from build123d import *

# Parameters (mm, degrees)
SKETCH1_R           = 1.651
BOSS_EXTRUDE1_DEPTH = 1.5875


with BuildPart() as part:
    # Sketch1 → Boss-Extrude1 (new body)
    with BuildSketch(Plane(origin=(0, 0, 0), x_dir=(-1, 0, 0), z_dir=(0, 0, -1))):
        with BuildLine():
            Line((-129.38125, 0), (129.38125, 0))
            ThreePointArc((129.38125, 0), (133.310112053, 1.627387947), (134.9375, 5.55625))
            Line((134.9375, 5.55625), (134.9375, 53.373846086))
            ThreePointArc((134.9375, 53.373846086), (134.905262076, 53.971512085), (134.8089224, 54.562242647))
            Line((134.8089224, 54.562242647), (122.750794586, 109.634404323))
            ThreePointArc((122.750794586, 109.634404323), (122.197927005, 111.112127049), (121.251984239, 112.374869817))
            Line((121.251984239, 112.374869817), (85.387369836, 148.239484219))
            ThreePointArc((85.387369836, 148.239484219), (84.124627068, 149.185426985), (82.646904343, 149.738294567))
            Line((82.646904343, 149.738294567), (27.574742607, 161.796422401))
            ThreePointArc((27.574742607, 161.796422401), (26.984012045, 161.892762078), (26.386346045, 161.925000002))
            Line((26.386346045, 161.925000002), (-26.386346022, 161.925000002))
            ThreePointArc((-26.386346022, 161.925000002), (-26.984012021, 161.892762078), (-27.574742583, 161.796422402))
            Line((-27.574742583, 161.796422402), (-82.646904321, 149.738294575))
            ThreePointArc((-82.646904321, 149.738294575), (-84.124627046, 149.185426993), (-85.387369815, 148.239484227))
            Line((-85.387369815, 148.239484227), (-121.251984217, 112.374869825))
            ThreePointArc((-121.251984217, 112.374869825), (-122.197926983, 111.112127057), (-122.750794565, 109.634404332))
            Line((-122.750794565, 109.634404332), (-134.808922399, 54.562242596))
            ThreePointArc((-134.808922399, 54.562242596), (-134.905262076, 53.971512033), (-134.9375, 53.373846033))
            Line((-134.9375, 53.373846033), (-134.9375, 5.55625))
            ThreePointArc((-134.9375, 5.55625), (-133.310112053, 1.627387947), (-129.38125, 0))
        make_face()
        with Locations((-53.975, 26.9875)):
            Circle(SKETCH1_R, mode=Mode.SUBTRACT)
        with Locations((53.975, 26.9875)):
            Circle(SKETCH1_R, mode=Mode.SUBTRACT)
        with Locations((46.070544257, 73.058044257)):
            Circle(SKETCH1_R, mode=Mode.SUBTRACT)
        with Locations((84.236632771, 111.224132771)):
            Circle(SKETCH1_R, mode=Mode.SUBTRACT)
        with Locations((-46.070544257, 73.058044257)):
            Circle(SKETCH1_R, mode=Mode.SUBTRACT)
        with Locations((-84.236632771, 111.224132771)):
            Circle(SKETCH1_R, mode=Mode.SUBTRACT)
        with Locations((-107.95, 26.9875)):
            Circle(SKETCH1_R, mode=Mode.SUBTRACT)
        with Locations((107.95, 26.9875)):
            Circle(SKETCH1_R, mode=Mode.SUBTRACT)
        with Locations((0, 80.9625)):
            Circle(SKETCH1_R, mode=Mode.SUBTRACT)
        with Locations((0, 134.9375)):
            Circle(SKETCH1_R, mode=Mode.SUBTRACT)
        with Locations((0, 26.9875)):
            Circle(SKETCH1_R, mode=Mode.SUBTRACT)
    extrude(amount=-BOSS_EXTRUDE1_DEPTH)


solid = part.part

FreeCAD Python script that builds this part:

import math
import FreeCAD as App
import Part
import Sketcher
from FreeCAD import Vector
Q = App.Units.Quantity

doc = App.newDocument("Part")
body = doc.addObject("PartDesign::Body", "Body")

# Sketch on XY plane
sketch1 = body.newObject("Sketcher::SketchObject", "Sketch")
sketch1.AttachmentSupport = (doc.getObject("XY_Plane"), [""])
sketch1.MapMode = "FlatFace"
sketch1.addGeometry([
    Part.LineSegment(Vector(129.4, 0, 0), Vector(-129.4, 0, 0)),  # 0
    Part.ArcOfCircle(Part.Circle(Vector(-129.4, 5.6, 0), Vector(0, 0, 1), 5.6), math.radians(180), math.radians(270)),  # 1
    Part.LineSegment(Vector(-134.9, 5.6, 0), Vector(-134.9, 53.4, 0)),  # 2
    Part.ArcOfCircle(Part.Circle(Vector(-129.4, 53.4, 0), Vector(0, 0, 1), 5.6), math.radians(167.65), math.radians(180)),  # 3
    Part.LineSegment(Vector(-134.8, 54.6, 0), Vector(-122.8, 109.6, 0)),  # 4
    Part.ArcOfCircle(Part.Circle(Vector(-117.3, 108.4, 0), Vector(0, 0, 1), 5.6), math.radians(135), math.radians(168)),  # 5
    Part.LineSegment(Vector(-121.3, 112.4, 0), Vector(-85.4, 148.2, 0)),  # 6
    Part.ArcOfCircle(Part.Circle(Vector(-81.5, 144.3, 0), Vector(0, 0, 1), 5.6), math.radians(102), math.radians(135)),  # 7
    Part.LineSegment(Vector(-82.6, 149.7, 0), Vector(-27.6, 161.8, 0)),  # 8
    Part.ArcOfCircle(Part.Circle(Vector(-26.4, 156.4, 0), Vector(0, 0, 1), 5.6), math.radians(90), math.radians(102.35)),  # 9
    Part.LineSegment(Vector(-26.4, 161.9, 0), Vector(26.4, 161.9, 0)),  # 10
    Part.ArcOfCircle(Part.Circle(Vector(26.4, 156.4, 0), Vector(0, 0, 1), 5.6), math.radians(77.65), math.radians(90)),  # 11
    Part.LineSegment(Vector(27.6, 161.8, 0), Vector(82.6, 149.7, 0)),  # 12
    Part.ArcOfCircle(Part.Circle(Vector(81.5, 144.3, 0), Vector(0, 0, 1), 5.6), math.radians(45), math.radians(78)),  # 13
    Part.LineSegment(Vector(85.4, 148.2, 0), Vector(121.3, 112.4, 0)),  # 14
    Part.ArcOfCircle(Part.Circle(Vector(117.3, 108.4, 0), Vector(0, 0, 1), 5.6), math.radians(12), math.radians(45)),  # 15
    Part.LineSegment(Vector(122.8, 109.6, 0), Vector(134.8, 54.6, 0)),  # 16
    Part.ArcOfCircle(Part.Circle(Vector(129.4, 53.4, 0), Vector(0, 0, 1), 5.6), math.radians(0), math.radians(12.35)),  # 17
    Part.LineSegment(Vector(134.9, 53.4, 0), Vector(134.9, 5.6, 0)),  # 18
    Part.ArcOfCircle(Part.Circle(Vector(129.4, 5.6, 0), Vector(0, 0, 1), 5.6), math.radians(-90), math.radians(0)),  # 19
    Part.Circle(Vector(108, 27, 0), Vector(0, 0, 1), 1.7),  # 20
    Part.Circle(Vector(54, 27, 0), Vector(0, 0, 1), 1.7),  # 21
    Part.Circle(Vector(46.1, 73.1, 0), Vector(0, 0, 1), 1.7),  # 22
    Part.Circle(Vector(0, 27, 0), Vector(0, 0, 1), 1.7),  # 23
    Part.Circle(Vector(-54, 27, 0), Vector(0, 0, 1), 1.7),  # 24
    Part.Circle(Vector(-108, 27, 0), Vector(0, 0, 1), 1.7),  # 25
    Part.Circle(Vector(-46.1, 73.1, 0), Vector(0, 0, 1), 1.7),  # 26
    Part.Circle(Vector(84.2, 111.2, 0), Vector(0, 0, 1), 1.7),  # 27
    Part.Circle(Vector(0, 81, 0), Vector(0, 0, 1), 1.7),  # 28
    Part.Circle(Vector(0, 134.9, 0), Vector(0, 0, 1), 1.7),  # 29
    Part.Circle(Vector(-84.2, 111.2, 0), Vector(0, 0, 1), 1.7),  # 30
], False)
sketch1.addConstraint([
    Sketcher.Constraint("Tangent", 0, 2, 1, 2),
    Sketcher.Constraint("Tangent", 1, 1, 2, 1),
    Sketcher.Constraint("Tangent", 2, 2, 3, 2),
    Sketcher.Constraint("Tangent", 3, 1, 4, 1),
    Sketcher.Constraint("Tangent", 4, 2, 5, 2),
    Sketcher.Constraint("Tangent", 5, 1, 6, 1),
    Sketcher.Constraint("Tangent", 6, 2, 7, 2),
    Sketcher.Constraint("Tangent", 7, 1, 8, 1),
    Sketcher.Constraint("Tangent", 8, 2, 9, 2),
    Sketcher.Constraint("Tangent", 9, 1, 10, 1),
    Sketcher.Constraint("Tangent", 10, 2, 11, 2),
    Sketcher.Constraint("Tangent", 11, 1, 12, 1),
    Sketcher.Constraint("Tangent", 12, 2, 13, 2),
    Sketcher.Constraint("Tangent", 13, 1, 14, 1),
    Sketcher.Constraint("Tangent", 14, 2, 15, 2),
    Sketcher.Constraint("Tangent", 15, 1, 16, 1),
    Sketcher.Constraint("Tangent", 16, 2, 17, 2),
    Sketcher.Constraint("Tangent", 17, 1, 18, 1),
    Sketcher.Constraint("Tangent", 18, 2, 19, 2),
    Sketcher.Constraint("Tangent", 19, 1, 0, 1),
    Sketcher.Constraint("Horizontal", 0),
    Sketcher.Constraint("Vertical", 2),
    Sketcher.Constraint("Horizontal", 10),
    Sketcher.Constraint("Vertical", 18),
    Sketcher.Constraint("Equal", 1, 3),
    Sketcher.Constraint("Equal", 3, 5),
    Sketcher.Constraint("Equal", 5, 7),
    Sketcher.Constraint("Equal", 7, 9),
    Sketcher.Constraint("Equal", 9, 11),
    Sketcher.Constraint("Equal", 11, 13),
    Sketcher.Constraint("Equal", 13, 15),
    Sketcher.Constraint("Equal", 15, 17),
    Sketcher.Constraint("Equal", 17, 19),
    Sketcher.Constraint("Equal", 20, 21),
    Sketcher.Constraint("Equal", 21, 22),
    Sketcher.Constraint("Equal", 22, 23),
    Sketcher.Constraint("Equal", 23, 24),
    Sketcher.Constraint("Equal", 24, 25),
    Sketcher.Constraint("Equal", 25, 26),
    Sketcher.Constraint("Equal", 26, 27),
    Sketcher.Constraint("Equal", 27, 28),
    Sketcher.Constraint("Equal", 28, 29),
    Sketcher.Constraint("Equal", 29, 30),
    Sketcher.Constraint("Symmetric", 0, 2, 19, 1, -1, 1),
    Sketcher.Constraint("Symmetric", 7, 3, 13, 3, -2),
    Sketcher.Constraint("Symmetric", 5, 3, 15, 3, -2),
    Sketcher.Constraint("Symmetric", 21, 3, 24, 3, -2),
    Sketcher.Constraint("Symmetric", 20, 3, 25, 3, -2),
    Sketcher.Constraint("Symmetric", 22, 3, 26, 3, -2),
    Sketcher.Constraint("Symmetric", 27, 3, 30, 3, -2),
    Sketcher.Constraint("PointOnObject", 23, 3, -2),
    Sketcher.Constraint("PointOnObject", 28, 3, -2),
    Sketcher.Constraint("PointOnObject", 29, 3, -2),
    Sketcher.Constraint("Perpendicular", 4, 12),
    Sketcher.Constraint("Perpendicular", 6, 14),
    Sketcher.Constraint("Perpendicular", 8, 16),
    Sketcher.Constraint("Horizontal", 3, 3, 17, 3),
    Sketcher.Constraint("Horizontal", 20, 3, 21, 3),
    Sketcher.Constraint("Horizontal", 21, 3, 23, 3),
    Sketcher.Constraint("Equal", 4, 8),
    Sketcher.Constraint("Diameter", 20, Q("0.13 in")),
    Sketcher.Constraint("Radius", 1, Q("0.21875 in")),
    Sketcher.Constraint("DistanceX", 0, 2, 0, 1, Q("10.1875 in")),
    Sketcher.Constraint("DistanceX", -1, 1, 20, 3, Q("4.25 in")),
    Sketcher.Constraint("DistanceX", 24, 3, 21, 3, Q("4.25 in")),
    Sketcher.Constraint("DistanceY", -1, 1, 9, 3, Q("6.15625 in")),
    Sketcher.Constraint("DistanceY", -1, 1, 20, 3, Q("1.0625 in")),
    Sketcher.Constraint("DistanceY", -1, 1, 28, 3, Q("3.1875 in")),
    Sketcher.Constraint("DistanceY", -1, 1, 29, 3, Q("5.3125 in")),
    Sketcher.Constraint("DistanceY", 15, 3, 27, 3, Q("0.109375 in")),
    Sketcher.Constraint("DistanceX", 13, 3, 27, 3, Q("0.109375 in")),
    Sketcher.Constraint("DistanceX", 5, 1, -1, 1, Q("4.7737002 in")),
    Sketcher.Constraint("DistanceX", 11, 3, 22, 3, 19.684198),
    Sketcher.Constraint("Distance", 4, 56.376781),
    Sketcher.Constraint("DistanceX", 10, 1, 10, 2, 52.772692),
    Sketcher.Constraint("DistanceY", 22, 3, 27, 3, 38.166089),
])
pad1 = body.newObject("PartDesign::Pad", "Pad")
pad1.Profile = sketch1
pad1.Length = Q("0.0625 in")

doc.recompute()
